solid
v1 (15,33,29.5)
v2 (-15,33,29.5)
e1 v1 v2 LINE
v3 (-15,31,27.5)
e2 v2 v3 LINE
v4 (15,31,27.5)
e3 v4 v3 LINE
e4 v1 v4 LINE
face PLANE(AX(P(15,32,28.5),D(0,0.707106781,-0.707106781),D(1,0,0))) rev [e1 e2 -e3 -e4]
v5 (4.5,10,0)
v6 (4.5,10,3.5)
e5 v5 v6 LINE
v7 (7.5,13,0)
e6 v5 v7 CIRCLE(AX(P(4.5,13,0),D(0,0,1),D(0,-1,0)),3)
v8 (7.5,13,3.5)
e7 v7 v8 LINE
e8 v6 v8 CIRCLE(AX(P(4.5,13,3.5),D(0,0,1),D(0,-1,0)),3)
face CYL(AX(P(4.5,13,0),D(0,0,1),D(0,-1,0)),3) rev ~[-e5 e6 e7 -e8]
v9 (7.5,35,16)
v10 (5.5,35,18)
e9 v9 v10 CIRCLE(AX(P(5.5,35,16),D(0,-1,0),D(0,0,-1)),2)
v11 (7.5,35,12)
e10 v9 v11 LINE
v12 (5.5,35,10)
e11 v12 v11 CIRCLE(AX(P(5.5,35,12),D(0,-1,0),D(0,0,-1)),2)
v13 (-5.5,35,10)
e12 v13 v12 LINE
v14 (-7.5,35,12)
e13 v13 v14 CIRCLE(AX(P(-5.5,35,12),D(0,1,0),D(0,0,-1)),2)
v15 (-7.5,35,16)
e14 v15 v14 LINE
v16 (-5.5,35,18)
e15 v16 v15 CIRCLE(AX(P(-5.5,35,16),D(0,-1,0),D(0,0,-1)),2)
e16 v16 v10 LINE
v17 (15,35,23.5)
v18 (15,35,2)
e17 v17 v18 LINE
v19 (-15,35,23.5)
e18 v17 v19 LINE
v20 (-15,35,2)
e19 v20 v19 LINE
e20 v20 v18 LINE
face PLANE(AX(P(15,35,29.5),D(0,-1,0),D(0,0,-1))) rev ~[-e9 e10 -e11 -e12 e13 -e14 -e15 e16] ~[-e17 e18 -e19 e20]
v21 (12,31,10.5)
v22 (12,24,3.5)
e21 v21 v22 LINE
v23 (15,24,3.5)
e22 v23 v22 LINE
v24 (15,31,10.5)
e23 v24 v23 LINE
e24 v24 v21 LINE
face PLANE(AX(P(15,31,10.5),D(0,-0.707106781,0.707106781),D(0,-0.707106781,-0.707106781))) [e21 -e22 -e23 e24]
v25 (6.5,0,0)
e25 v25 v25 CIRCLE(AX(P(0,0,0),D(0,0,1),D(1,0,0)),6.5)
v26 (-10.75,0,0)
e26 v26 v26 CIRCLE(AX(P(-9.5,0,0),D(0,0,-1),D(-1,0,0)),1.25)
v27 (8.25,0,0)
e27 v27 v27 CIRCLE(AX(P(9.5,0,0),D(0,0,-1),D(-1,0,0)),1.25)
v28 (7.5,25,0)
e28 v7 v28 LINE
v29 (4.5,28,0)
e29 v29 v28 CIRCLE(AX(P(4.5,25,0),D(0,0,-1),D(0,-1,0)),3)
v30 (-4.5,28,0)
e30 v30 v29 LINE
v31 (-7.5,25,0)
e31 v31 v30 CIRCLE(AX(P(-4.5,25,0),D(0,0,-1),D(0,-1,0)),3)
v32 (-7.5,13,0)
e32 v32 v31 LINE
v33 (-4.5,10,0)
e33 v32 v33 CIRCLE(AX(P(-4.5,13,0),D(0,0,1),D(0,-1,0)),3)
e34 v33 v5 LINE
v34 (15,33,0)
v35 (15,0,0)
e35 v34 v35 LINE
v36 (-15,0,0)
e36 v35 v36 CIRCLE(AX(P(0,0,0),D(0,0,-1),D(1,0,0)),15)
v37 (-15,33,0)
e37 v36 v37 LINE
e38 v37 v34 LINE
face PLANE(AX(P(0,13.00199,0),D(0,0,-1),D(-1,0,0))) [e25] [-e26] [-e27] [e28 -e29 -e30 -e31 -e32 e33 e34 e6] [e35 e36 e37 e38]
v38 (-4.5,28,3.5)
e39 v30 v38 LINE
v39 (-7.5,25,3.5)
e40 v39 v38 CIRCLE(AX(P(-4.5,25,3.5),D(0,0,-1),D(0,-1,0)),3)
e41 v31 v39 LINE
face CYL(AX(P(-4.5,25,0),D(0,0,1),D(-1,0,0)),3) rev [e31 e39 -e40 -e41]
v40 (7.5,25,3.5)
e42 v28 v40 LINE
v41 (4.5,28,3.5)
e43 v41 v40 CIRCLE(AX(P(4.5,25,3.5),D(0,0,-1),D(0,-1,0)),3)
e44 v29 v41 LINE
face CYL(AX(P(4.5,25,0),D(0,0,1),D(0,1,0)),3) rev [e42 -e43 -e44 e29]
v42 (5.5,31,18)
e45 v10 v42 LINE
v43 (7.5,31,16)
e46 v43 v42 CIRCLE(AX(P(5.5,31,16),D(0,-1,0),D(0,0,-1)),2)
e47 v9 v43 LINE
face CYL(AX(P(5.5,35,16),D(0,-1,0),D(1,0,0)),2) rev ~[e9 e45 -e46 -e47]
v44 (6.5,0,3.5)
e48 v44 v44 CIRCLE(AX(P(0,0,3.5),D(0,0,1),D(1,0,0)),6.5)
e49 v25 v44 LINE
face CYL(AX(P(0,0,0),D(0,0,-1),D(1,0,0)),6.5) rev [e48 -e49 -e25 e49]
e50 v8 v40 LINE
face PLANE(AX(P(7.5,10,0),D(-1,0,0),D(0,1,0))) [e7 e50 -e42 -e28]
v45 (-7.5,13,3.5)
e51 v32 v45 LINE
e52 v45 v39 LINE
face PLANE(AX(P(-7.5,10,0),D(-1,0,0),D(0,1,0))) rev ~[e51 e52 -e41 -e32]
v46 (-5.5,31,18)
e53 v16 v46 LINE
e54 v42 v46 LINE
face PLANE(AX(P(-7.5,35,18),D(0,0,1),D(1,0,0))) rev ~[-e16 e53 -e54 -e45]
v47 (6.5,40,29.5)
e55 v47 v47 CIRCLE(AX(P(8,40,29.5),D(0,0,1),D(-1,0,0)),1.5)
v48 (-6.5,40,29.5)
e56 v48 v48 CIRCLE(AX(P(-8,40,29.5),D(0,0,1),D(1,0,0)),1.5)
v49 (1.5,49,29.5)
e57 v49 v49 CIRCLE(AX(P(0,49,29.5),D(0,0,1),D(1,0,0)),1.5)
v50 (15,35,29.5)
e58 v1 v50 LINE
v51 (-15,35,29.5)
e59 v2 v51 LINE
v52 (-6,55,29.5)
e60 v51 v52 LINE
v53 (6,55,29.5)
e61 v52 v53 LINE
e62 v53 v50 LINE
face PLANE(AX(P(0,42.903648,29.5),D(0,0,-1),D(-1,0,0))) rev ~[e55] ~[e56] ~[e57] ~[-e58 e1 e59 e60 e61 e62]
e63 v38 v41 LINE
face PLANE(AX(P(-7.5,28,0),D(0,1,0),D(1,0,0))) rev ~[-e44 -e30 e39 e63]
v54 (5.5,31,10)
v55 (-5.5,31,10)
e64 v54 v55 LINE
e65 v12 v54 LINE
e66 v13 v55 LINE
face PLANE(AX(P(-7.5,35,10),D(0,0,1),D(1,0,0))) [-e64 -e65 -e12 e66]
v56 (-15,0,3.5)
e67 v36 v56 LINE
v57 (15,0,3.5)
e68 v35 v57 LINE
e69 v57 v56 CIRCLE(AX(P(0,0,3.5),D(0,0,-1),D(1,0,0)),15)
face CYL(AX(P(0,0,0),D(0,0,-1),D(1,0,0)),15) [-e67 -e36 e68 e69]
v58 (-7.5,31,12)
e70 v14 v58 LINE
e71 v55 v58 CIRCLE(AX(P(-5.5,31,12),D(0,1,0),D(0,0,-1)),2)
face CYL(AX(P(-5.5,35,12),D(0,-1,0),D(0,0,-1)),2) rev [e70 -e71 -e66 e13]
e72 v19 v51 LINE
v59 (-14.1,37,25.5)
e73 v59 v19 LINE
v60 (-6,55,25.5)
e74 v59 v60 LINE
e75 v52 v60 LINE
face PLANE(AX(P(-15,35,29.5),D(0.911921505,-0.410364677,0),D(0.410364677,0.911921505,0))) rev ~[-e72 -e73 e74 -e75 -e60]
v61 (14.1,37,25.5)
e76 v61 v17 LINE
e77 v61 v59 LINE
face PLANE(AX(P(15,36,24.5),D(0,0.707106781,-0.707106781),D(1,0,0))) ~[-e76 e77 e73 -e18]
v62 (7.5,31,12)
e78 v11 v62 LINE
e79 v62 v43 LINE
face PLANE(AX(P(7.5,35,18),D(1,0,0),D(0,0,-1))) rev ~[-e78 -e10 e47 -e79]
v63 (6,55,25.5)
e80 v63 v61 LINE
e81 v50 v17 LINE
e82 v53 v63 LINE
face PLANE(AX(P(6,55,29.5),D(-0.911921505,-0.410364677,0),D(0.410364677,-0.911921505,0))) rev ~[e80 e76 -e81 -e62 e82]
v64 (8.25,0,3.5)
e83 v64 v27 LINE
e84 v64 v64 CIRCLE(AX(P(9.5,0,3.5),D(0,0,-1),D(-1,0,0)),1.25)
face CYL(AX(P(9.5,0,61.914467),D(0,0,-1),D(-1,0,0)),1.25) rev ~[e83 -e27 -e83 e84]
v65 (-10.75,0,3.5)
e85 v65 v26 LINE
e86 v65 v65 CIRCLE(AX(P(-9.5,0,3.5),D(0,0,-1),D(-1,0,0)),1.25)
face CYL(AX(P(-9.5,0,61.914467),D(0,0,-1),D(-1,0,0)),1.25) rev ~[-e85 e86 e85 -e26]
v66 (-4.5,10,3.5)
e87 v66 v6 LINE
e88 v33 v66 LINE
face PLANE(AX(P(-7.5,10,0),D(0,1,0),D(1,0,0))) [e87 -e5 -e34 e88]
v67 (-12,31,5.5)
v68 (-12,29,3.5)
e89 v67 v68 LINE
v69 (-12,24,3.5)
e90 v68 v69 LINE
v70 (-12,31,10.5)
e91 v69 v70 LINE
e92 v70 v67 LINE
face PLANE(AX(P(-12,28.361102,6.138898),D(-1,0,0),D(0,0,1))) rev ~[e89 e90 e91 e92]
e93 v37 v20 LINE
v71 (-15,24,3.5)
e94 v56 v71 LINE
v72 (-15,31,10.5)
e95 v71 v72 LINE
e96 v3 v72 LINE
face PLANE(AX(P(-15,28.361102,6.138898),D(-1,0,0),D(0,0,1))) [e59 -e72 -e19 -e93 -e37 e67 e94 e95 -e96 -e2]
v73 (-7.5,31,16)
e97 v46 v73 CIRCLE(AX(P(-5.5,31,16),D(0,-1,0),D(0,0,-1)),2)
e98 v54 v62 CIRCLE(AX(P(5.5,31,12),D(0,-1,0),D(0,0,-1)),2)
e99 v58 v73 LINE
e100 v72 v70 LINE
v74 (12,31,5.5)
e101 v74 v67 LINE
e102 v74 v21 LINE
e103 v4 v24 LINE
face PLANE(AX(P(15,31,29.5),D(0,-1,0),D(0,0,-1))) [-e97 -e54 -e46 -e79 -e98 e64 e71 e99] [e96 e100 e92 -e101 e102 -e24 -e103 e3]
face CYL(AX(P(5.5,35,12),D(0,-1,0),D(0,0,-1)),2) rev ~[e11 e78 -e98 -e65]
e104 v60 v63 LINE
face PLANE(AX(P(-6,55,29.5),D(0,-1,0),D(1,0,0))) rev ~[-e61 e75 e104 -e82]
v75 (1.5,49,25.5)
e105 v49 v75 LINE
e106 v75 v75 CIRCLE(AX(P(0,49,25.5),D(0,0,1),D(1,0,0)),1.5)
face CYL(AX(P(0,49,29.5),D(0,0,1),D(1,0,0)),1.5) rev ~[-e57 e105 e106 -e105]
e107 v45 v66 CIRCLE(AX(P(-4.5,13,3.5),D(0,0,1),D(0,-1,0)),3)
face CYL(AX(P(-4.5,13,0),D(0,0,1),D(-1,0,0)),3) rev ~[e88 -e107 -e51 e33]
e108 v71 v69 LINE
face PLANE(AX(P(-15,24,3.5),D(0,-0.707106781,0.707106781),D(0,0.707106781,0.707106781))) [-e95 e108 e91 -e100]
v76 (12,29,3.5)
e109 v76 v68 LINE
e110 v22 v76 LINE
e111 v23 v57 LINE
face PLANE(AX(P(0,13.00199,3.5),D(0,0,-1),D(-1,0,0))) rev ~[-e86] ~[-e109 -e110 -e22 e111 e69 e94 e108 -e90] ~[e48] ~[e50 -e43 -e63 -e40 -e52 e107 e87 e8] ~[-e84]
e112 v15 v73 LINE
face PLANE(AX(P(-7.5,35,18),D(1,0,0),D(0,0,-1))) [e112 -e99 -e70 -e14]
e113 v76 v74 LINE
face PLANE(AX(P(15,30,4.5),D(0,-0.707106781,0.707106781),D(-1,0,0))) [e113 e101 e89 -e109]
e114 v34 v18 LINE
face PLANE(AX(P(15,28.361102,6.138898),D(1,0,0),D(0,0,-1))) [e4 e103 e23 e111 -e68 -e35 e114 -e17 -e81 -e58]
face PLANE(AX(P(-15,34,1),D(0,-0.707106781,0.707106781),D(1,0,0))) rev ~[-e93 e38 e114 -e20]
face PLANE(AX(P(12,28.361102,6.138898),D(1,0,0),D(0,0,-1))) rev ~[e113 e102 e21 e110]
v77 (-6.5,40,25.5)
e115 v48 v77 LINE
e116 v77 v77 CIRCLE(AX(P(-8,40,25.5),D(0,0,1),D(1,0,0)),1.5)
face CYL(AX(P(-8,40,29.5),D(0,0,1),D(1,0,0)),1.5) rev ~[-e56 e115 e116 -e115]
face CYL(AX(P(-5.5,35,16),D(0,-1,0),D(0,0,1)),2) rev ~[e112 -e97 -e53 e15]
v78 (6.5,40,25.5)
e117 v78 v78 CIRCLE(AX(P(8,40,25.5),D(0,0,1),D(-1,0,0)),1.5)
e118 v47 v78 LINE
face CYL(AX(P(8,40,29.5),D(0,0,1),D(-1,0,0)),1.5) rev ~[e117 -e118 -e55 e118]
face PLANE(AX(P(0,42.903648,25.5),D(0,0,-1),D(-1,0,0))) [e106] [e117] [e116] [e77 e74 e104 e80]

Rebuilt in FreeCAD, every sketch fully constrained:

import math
import FreeCAD as App
import Part
import Sketcher
from FreeCAD import Vector


def edges_at(feature, points):
    """Names of the edges that pass closest to the given points."""
    edges = feature.Shape.Edges
    near = lambda p: min(range(len(edges)), key=lambda i: edges[i].distToShape(Part.Vertex(*p))[0])
    return sorted({f"Edge{near(p) + 1}" for p in points})

doc = App.newDocument("Part")
body = doc.addObject("PartDesign::Body", "Body")

sketch1 = doc.addObject("Sketcher::SketchObject", "Sketch")
body.addObject(sketch1)
sketch1.AttachmentSupport = (doc.XY_Plane, [""])
sketch1.MapMode = "FlatFace"
sketch1.addGeometry([
    Part.LineSegment(Vector(15, 35, 0), Vector(-15, 35, 0)),
    Part.LineSegment(Vector(-15, 35, 0), Vector(-15, 0, 0)),
    Part.ArcOfCircle(Part.Circle(Vector(0, 0, 0), Vector(0, 0, 1), 15), math.radians(180), math.radians(360)),
    Part.LineSegment(Vector(15, 0, 0), Vector(15, 35, 0)),
    Part.Circle(Vector(0, 0, 0), Vector(0, 0, 1), 6),
    Part.LineSegment(Vector(-8, 10, 0), Vector(-8, 28, 0)),
    Part.LineSegment(Vector(-8, 28, 0), Vector(8, 28, 0)),
    Part.LineSegment(Vector(8, 28, 0), Vector(8, 10, 0)),
    Part.LineSegment(Vector(8, 10, 0), Vector(-8, 10, 0)),
], False)
sketch1.addConstraint([
    Sketcher.Constraint("Coincident", 0, 2, 1, 1),
    Sketcher.Constraint("Tangent", 1, 2, 2, 1),
    Sketcher.Constraint("Tangent", 2, 2, 3, 1),
    Sketcher.Constraint("Coincident", 3, 2, 0, 1),
    Sketcher.Constraint("Coincident", 5, 2, 6, 1),
    Sketcher.Constraint("Coincident", 6, 2, 7, 1),
    Sketcher.Constraint("Coincident", 7, 2, 8, 1),
    Sketcher.Constraint("Coincident", 8, 2, 5, 1),
    Sketcher.Constraint("Horizontal", 0),
    Sketcher.Constraint("Vertical", 1),
    Sketcher.Constraint("Vertical", 3),
    Sketcher.Constraint("Vertical", 5),
    Sketcher.Constraint("Horizontal", 6),
    Sketcher.Constraint("Vertical", 7),
    Sketcher.Constraint("Horizontal", 8),
    Sketcher.Constraint("Coincident", 2, 3, -1, 1),
    Sketcher.Constraint("Coincident", 4, 3, -1, 1),
    Sketcher.Constraint("Diameter", 4, 13.0),
    Sketcher.Constraint("Radius", 2, 15.0),
    Sketcher.Constraint("DistanceX", 6, 1, 6, 2, 15.0),
    Sketcher.Constraint("DistanceY", 1, 2, 1, 1, 35.0),
    Sketcher.Constraint("DistanceY", 5, 1, 5, 2, 18.0),
    Sketcher.Constraint("DistanceY", -1, 1, 5, 2, 28.0),
    Sketcher.Constraint("DistanceX", 5, 2, -1, 1, 7.5),
])
pad1 = doc.addObject("PartDesign::Pad", "Pad")
body.addObject(pad1)
pad1.Profile = sketch1
pad1.Length = 3.5

sketch2 = doc.addObject("Sketcher::SketchObject", "Sketch001")
body.addObject(sketch2)
sketch2.AttachmentSupport = (doc.XY_Plane, [""])
sketch2.MapMode = "FlatFace"
sketch2.AttachmentOffset = App.Placement(Vector(0, 0, 3.5), App.Rotation())
sketch2.addGeometry([
    Part.Circle(Vector(9.5, 0, 0), Vector(0, 0, 1), 1.2),
    Part.Circle(Vector(-9.5, 0, 0), Vector(0, 0, 1), 1.2),
], False)
sketch2.addConstraint([
    Sketcher.Constraint("Equal", 0, 1),
    Sketcher.Constraint("Symmetric", 0, 3, 1, 3, -1, 1),
    Sketcher.Constraint("PointOnObject", 0, 3, -1),
    Sketcher.Constraint("Diameter", 0, 2.5),
    Sketcher.Constraint("DistanceX", 1, 3, 0, 3, 19.0),
])
doc.recompute()
hole = doc.addObject("PartDesign::Hole", "Hole")
body.addObject(hole)
hole.Profile = sketch2
hole.ThreadType = "None"
hole.Diameter = 2.5
hole.DepthType = "ThroughAll"
doc.recompute()

fillet = doc.addObject("PartDesign::Fillet", "Fillet")
body.addObject(fillet)
fillet.Base = (hole, edges_at(hole, [
    (-7.5, 10, 1.75),
    (7.5, 10, 1.75),
    (7.5, 28, 1.75),
    (-7.5, 28, 1.75),
]))
fillet.Radius = 3

sketch3 = doc.addObject("Sketcher::SketchObject", "Sketch002")
body.addObject(sketch3)
sketch3.AttachmentSupport = (doc.YZ_Plane, [""])
sketch3.MapMode = "FlatFace"
sketch3.AttachmentOffset = App.Placement(Vector(0, 0, 15), App.Rotation())
sketch3.addGeometry([
    Part.LineSegment(Vector(35, 29.5, 0), Vector(31, 29.5, 0)),
    Part.LineSegment(Vector(31, 29.5, 0), Vector(31, 3.5, 0)),
    Part.LineSegment(Vector(31, 3.5, 0), Vector(35, 3.5, 0)),
    Part.LineSegment(Vector(35, 3.5, 0), Vector(35, 29.5, 0)),
], False)
sketch3.addConstraint([
    Sketcher.Constraint("Coincident", 0, 2, 1, 1),
    Sketcher.Constraint("Coincident", 1, 2, 2, 1),
    Sketcher.Constraint("Coincident", 2, 2, 3, 1),
    Sketcher.Constraint("Coincident", 3, 2, 0, 1),
    Sketcher.Constraint("Horizontal", 0),
    Sketcher.Constraint("Vertical", 1),
    Sketcher.Constraint("Horizontal", 2),
    Sketcher.Constraint("Vertical", 3),
    Sketcher.Constraint("DistanceX", 0, 2, 0, 1, 4.0),
    Sketcher.Constraint("DistanceY", 1, 2, 1, 1, 26.0),
    Sketcher.Constraint("DistanceX", -1, 1, 0, 2, 31.0),
    Sketcher.Constraint("DistanceY", -1, 1, 0, 2, 29.5),
])
pad2 = doc.addObject("PartDesign::Pad", "Pad001")
body.addObject(pad2)
pad2.Profile = sketch3
pad2.Length = 30
pad2.Reversed = True

sketch4 = doc.addObject("Sketcher::SketchObject", "Sketch003")
body.addObject(sketch4)
sketch4.AttachmentSupport = (doc.XY_Plane, [""])
sketch4.MapMode = "FlatFace"
sketch4.AttachmentOffset = App.Placement(Vector(0, 0, 29.5), App.Rotation())
sketch4.addGeometry([
    Part.LineSegment(Vector(-6, 55, 0), Vector(-15, 35, 0)),
    Part.LineSegment(Vector(-15, 35, 0), Vector(15, 35, 0)),
    Part.LineSegment(Vector(15, 35, 0), Vector(6, 55, 0)),
    Part.LineSegment(Vector(6, 55, 0), Vector(-6, 55, 0)),
    Part.Circle(Vector(8, 40, 0), Vector(0, 0, 1), 1.5),
    Part.Circle(Vector(-8, 40, 0), Vector(0, 0, 1), 1.5),
    Part.Circle(Vector(0, 49, 0), Vector(0, 0, 1), 1.5),
], False)
sketch4.addConstraint([
    Sketcher.Constraint("Coincident", 0, 2, 1, 1),
    Sketcher.Constraint("Coincident", 1, 2, 2, 1),
    Sketcher.Constraint("Coincident", 2, 2, 3, 1),
    Sketcher.Constraint("Coincident", 3, 2, 0, 1),
    Sketcher.Constraint("Horizontal", 1),
    Sketcher.Constraint("Horizontal", 3),
    Sketcher.Constraint("Equal", 4, 5),
    Sketcher.Constraint("Equal", 5, 6),
    Sketcher.Constraint("Symmetric", 4, 3, 5, 3, -2),
    Sketcher.Constraint("PointOnObject", 6, 3, -2),
    Sketcher.Constraint("Equal", 0, 2),
    Sketcher.Constraint("Diameter", 4, 3.0),
    Sketcher.Constraint("DistanceX", 1, 1, 1, 2, 30.0),
    Sketcher.Constraint("DistanceX", 3, 2, 3, 1, 12.0),
    Sketcher.Constraint("DistanceX", -1, 1, 4, 3, 8.0),
    Sketcher.Constraint("DistanceY", -1, 1, 4, 3, 40.0),
    Sketcher.Constraint("DistanceY", -1, 1, 6, 3, 49.0),
    Sketcher.Constraint("DistanceX", 0, 2, -1, 1, 15.0),
    Sketcher.Constraint("DistanceY", -1, 1, 0, 2, 35.0),
    Sketcher.Constraint("DistanceY", -1, 1, 2, 2, 55.0),
])
pad3 = doc.addObject("PartDesign::Pad", "Pad002")
body.addObject(pad3)
pad3.Profile = sketch4
pad3.Length = 4
pad3.Reversed = True
doc.recompute()

chamfer = doc.addObject("PartDesign::Chamfer", "Chamfer")
body.addObject(chamfer)
chamfer.Base = (pad3, edges_at(pad3, [
    (0, 35, 0),
    (0, 31, 3.5),
    (0, 31, 29.5),
    (0, 35, 25.5),
]))
chamfer.Size = 2

sketch5 = doc.addObject("Sketcher::SketchObject", "Sketch004")
body.addObject(sketch5)
sketch5.AttachmentSupport = (doc.XZ_Plane, [""])
sketch5.MapMode = "FlatFace"
sketch5.AttachmentOffset = App.Placement(Vector(0, 0, -35), App.Rotation())
sketch5.addGeometry([
    Part.LineSegment(Vector(-8, 10, 0), Vector(-8, 18, 0)),
    Part.LineSegment(Vector(-8, 18, 0), Vector(8, 18, 0)),
    Part.LineSegment(Vector(8, 18, 0), Vector(8, 10, 0)),
    Part.LineSegment(Vector(8, 10, 0), Vector(-8, 10, 0)),
], False)
sketch5.addConstraint([
    Sketcher.Constraint("Coincident", 0, 2, 1, 1),
    Sketcher.Constraint("Coincident", 1, 2, 2, 1),
    Sketcher.Constraint("Coincident", 2, 2, 3, 1),
    Sketcher.Constraint("Coincident", 3, 2, 0, 1),
    Sketcher.Constraint("Vertical", 0),
    Sketcher.Constraint("Horizontal", 1),
    Sketcher.Constraint("Vertical", 2),
    Sketcher.Constraint("Horizontal", 3),
    Sketcher.Constraint("DistanceX", 1, 1, 1, 2, 15.0),
    Sketcher.Constraint("DistanceY", 0, 1, 0, 2, 8.0),
    Sketcher.Constraint("DistanceY", -1, 1, 0, 2, 18.0),
    Sketcher.Constraint("DistanceX", 0, 2, -1, 1, 7.5),
])
pocket1 = doc.addObject("PartDesign::Pocket", "Pocket")
body.addObject(pocket1)
pocket1.Profile = sketch5
pocket1.Length = 10
pocket1.Reversed = True
doc.recompute()

fillet2 = doc.addObject("PartDesign::Fillet", "Fillet001")
body.addObject(fillet2)
fillet2.Base = (pocket1, edges_at(pocket1, [
    (-7.5, 33, 18),
    (-7.5, 33, 10),
    (7.5, 33, 10),
    (7.5, 33, 18),
]))
fillet2.Radius = 2

sketch6 = doc.addObject("Sketcher::SketchObject", "Sketch005")
body.addObject(sketch6)
sketch6.AttachmentSupport = (doc.YZ_Plane, [""])
sketch6.MapMode = "FlatFace"
sketch6.AttachmentOffset = App.Placement(Vector(0, 0, -15), App.Rotation())
sketch6.addGeometry([
    Part.LineSegment(Vector(24, 3.5, 0), Vector(31, 10.5, 0)),
    Part.LineSegment(Vector(31, 10.5, 0), Vector(31, 5.5, 0)),
    Part.LineSegment(Vector(31, 5.5, 0), Vector(29, 3.5, 0)),
    Part.LineSegment(Vector(29, 3.5, 0), Vector(24, 3.5, 0)),
], False)
sketch6.addConstraint([
    Sketcher.Constraint("Coincident", 0, 2, 1, 1),
    Sketcher.Constraint("Coincident", 1, 2, 2, 1),
    Sketcher.Constraint("Coincident", 2, 2, 3, 1),
    Sketcher.Constraint("Coincident", 3, 2, 0, 1),
    Sketcher.Constraint("Vertical", 1),
    Sketcher.Constraint("Horizontal", 3),
    Sketcher.Constraint("Parallel", 0, 2),
    Sketcher.Constraint("Equal", 3, 1),
    Sketcher.Constraint("DistanceX", 3, 2, 3, 1, 5.0),
    Sketcher.Constraint("DistanceX", -1, 1, 0, 2, 31.0),
    Sketcher.Constraint("DistanceX", -1, 1, 2, 2, 29.0),
    Sketcher.Constraint("DistanceY", -1, 1, 0, 2, 10.5),
])
pad4 = doc.addObject("PartDesign::Pad", "Pad003")
body.addObject(pad4)
pad4.Profile = sketch6
pad4.Length = 3

sketch7 = doc.addObject("Sketcher::SketchObject", "Sketch006")
body.addObject(sketch7)
sketch7.AttachmentSupport = (doc.YZ_Plane, [""])
sketch7.MapMode = "FlatFace"
sketch7.AttachmentOffset = App.Placement(Vector(0, 0, 15), App.Rotation())
sketch7.addGeometry([
    Part.LineSegment(Vector(24, 3.5, 0), Vector(29, 3.5, 0)),
    Part.LineSegment(Vector(29, 3.5, 0), Vector(31, 5.5, 0)),
    Part.LineSegment(Vector(31, 5.5, 0), Vector(31, 10.5, 0)),
    Part.LineSegment(Vector(31, 10.5, 0), Vector(24, 3.5, 0)),
], False)
sketch7.addConstraint([
    Sketcher.Constraint("Coincident", 0, 2, 1, 1),
    Sketcher.Constraint("Coincident", 1, 2, 2, 1),
    Sketcher.Constraint("Coincident", 2, 2, 3, 1),
    Sketcher.Constraint("Coincident", 3, 2, 0, 1),
    Sketcher.Constraint("Horizontal", 0),
    Sketcher.Constraint("Vertical", 2),
    Sketcher.Constraint("Parallel", 1, 3),
    Sketcher.Constraint("Equal", 0, 2),
    Sketcher.Constraint("DistanceX", 0, 1, 0, 2, 5.0),
    Sketcher.Constraint("DistanceX", -1, 1, 0, 2, 29.0),
    Sketcher.Constraint("DistanceX", -1, 1, 1, 2, 31.0),
    Sketcher.Constraint("DistanceY", -1, 1, 0, 2, 3.5),
])
pad5 = doc.addObject("PartDesign::Pad", "Pad004")
body.addObject(pad5)
pad5.Profile = sketch7
pad5.Length = 3
pad5.Reversed = True

doc.recompute()
